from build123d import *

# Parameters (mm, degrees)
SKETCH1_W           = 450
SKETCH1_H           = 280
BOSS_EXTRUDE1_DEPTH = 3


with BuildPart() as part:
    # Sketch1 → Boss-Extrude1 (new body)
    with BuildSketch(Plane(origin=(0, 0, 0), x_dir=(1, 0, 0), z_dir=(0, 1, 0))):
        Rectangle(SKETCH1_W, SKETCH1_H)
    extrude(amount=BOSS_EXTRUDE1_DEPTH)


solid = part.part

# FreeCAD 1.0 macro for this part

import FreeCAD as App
import Part
import Sketcher
from FreeCAD import Vector
Q = App.Units.Quantity


def add_polygon(sketch, points):
    """Adds a closed chain of lines whose ends are joined by coincident constraints."""
    first, n = sketch.GeometryCount, len(points)
    for a, b in zip(points, points[1:] + points[:1]):
        sketch.addGeometry(Part.LineSegment(App.Vector(*a, 0), App.Vector(*b, 0)), False)
    for i in range(n):
        sketch.addConstraint(Sketcher.Constraint("Coincident", first + i, 2, first + (i + 1) % n, 1))

doc = App.newDocument("Part")
body = doc.addObject("PartDesign::Body", "Body")

# Sketch on XZ plane
sketch1 = body.newObject("Sketcher::SketchObject", "Sketch")
sketch1.AttachmentSupport = (doc.getObject("XZ_Plane"), [""])
sketch1.MapMode = "FlatFace"
add_polygon(sketch1, [(-225, -140), (-225, 140), (225, 140), (225, -140)])  # lines 0-3
sketch1.addConstraint([
    Sketcher.Constraint("Vertical", 0),
    Sketcher.Constraint("Horizontal", 1),
    Sketcher.Constraint("Vertical", 2),
    Sketcher.Constraint("Horizontal", 3),
    Sketcher.Constraint("Symmetric", 0, 2, 2, 2, -1, 1),
    Sketcher.Constraint("DistanceX", 1, 1, 1, 2, Q("450 mm")),
    Sketcher.Constraint("DistanceY", 0, 1, 0, 2, Q("280 mm")),
])
pad1 = body.newObject("PartDesign::Pad", "Pad")
pad1.Profile = sketch1
pad1.Length = 3
pad1.Reversed = True

doc.recompute()
